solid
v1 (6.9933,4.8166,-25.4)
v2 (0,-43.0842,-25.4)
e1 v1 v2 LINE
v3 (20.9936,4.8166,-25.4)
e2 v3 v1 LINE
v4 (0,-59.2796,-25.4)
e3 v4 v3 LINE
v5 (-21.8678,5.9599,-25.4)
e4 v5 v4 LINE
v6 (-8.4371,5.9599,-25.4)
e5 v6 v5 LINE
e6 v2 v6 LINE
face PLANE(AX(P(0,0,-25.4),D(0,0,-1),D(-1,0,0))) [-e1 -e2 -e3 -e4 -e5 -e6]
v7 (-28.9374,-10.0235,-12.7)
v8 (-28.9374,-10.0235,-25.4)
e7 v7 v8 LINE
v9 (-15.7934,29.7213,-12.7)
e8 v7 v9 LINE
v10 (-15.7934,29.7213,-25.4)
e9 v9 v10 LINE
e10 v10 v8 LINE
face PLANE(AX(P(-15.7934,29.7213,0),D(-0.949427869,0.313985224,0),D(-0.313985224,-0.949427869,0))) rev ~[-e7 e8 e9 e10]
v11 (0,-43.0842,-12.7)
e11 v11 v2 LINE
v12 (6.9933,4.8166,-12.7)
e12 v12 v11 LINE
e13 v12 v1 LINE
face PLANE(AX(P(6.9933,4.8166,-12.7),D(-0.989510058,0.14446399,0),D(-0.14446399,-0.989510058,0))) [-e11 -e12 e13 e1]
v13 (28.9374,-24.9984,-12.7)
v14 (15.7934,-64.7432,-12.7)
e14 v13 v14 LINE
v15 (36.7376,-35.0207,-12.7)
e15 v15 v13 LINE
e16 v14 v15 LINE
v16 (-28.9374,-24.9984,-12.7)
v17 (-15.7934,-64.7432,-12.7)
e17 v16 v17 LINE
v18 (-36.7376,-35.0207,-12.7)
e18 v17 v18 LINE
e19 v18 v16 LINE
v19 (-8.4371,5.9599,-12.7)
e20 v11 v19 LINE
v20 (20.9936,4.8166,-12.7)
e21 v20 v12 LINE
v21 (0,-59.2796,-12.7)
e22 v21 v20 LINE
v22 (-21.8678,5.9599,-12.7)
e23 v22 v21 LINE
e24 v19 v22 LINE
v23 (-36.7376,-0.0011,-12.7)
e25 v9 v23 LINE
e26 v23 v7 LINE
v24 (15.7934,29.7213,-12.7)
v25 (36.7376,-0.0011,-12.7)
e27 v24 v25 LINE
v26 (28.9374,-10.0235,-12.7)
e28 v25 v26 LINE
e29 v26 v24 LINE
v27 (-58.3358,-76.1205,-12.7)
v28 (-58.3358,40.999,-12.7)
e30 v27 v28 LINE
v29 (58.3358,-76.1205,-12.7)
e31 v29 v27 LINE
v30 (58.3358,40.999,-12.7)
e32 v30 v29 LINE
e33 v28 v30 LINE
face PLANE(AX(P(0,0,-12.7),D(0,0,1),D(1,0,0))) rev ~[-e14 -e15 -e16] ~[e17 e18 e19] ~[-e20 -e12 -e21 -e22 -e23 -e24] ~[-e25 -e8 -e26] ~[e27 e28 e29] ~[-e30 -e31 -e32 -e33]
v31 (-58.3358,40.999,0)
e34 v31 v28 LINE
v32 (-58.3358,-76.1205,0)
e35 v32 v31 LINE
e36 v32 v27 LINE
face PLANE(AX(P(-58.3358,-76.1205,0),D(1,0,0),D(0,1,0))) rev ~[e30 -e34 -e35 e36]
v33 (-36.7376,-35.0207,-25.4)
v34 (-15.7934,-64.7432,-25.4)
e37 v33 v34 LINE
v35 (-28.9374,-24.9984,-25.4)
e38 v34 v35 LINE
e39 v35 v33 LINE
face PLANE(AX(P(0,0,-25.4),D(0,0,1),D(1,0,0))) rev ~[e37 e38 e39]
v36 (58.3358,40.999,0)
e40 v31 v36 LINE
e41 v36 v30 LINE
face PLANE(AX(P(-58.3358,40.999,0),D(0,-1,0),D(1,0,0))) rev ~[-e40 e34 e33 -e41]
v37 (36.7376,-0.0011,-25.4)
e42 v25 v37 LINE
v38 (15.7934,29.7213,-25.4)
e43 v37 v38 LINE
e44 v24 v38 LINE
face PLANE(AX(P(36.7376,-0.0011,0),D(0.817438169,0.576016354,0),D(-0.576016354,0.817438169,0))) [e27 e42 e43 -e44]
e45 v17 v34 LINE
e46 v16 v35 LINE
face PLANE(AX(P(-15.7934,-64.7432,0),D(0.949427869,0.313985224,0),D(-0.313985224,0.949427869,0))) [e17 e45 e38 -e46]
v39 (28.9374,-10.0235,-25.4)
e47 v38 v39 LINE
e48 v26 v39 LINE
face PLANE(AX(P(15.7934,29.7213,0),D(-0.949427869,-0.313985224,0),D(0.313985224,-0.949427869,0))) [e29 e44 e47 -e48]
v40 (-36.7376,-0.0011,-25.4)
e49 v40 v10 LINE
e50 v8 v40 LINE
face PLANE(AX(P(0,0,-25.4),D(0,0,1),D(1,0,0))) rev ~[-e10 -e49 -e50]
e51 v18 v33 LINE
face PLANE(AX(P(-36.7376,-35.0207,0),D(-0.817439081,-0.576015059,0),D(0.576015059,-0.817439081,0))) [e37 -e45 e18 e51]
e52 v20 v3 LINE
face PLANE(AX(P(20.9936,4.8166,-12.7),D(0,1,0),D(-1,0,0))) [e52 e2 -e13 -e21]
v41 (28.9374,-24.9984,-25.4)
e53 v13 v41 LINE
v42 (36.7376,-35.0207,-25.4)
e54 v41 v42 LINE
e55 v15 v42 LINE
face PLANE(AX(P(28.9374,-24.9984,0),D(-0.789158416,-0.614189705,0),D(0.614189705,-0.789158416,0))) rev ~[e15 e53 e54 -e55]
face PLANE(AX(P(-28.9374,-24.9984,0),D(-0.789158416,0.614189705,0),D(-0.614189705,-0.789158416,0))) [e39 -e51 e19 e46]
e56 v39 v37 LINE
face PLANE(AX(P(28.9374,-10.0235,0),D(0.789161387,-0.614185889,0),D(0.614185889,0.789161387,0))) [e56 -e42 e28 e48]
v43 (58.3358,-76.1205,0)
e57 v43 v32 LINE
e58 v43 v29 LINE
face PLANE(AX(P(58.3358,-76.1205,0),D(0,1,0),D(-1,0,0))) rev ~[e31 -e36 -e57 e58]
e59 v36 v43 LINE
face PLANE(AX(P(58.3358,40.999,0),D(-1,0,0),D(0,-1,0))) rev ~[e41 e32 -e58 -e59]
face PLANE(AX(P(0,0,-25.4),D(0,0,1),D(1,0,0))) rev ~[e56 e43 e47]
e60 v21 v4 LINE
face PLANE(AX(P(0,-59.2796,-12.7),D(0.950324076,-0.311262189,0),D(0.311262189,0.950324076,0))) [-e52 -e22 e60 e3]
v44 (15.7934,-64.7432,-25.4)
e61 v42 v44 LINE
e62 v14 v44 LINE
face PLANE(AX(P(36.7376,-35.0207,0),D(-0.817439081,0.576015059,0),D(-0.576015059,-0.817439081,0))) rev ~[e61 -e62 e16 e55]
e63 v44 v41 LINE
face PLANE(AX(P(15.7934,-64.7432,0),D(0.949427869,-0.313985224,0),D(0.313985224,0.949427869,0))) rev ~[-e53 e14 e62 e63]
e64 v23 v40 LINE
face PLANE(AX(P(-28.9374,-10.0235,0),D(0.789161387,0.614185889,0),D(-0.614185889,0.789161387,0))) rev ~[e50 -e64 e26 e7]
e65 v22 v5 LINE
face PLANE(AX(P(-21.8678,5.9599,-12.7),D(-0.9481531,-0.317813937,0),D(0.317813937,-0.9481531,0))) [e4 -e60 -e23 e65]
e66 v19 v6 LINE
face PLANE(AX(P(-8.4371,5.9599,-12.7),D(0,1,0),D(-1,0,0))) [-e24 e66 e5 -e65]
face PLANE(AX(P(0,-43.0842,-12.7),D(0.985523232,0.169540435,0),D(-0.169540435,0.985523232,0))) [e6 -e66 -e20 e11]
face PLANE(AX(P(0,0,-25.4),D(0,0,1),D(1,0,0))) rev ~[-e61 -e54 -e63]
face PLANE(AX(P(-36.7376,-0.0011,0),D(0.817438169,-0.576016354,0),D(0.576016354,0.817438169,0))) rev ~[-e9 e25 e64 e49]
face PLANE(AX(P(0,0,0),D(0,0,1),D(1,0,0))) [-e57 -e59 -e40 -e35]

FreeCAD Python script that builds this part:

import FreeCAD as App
import Part
import Sketcher
Q = App.Units.Quantity


def add_polygon(sketch, points):
    """Adds a closed chain of lines whose ends are joined by coincident constraints."""
    first, n = sketch.GeometryCount, len(points)
    for a, b in zip(points, points[1:] + points[:1]):
        sketch.addGeometry(Part.LineSegment(App.Vector(*a, 0), App.Vector(*b, 0)), False)
    for i in range(n):
        sketch.addConstraint(Sketcher.Constraint("Coincident", first + i, 2, first + (i + 1) % n, 1))

doc = App.newDocument("Part")
body = doc.addObject("PartDesign::Body", "Body")
body.AllowCompound = True

# Sketch on XY plane
sketch1 = doc.addObject("Sketcher::SketchObject", "Sketch")
body.addObject(sketch1)
sketch1.AttachmentSupport = (doc.XY_Plane, [""])
sketch1.MapMode = "FlatFace"
add_polygon(sketch1, [(-37, 0), (-29, -10), (-16, 30)])  # lines 0-2
add_polygon(sketch1, [(16, 30), (29, -10), (37, 0)])  # lines 3-5
add_polygon(sketch1, [(-16, -65), (-29, -25), (-37, -35)])  # lines 6-8
add_polygon(sketch1, [(29, -25), (16, -65), (37, -35)])  # lines 9-11
sketch1.addConstraint([
    Sketcher.Constraint("Symmetric", 0, 2, 3, 2, -2),
    Sketcher.Constraint("Symmetric", 2, 2, 4, 2, -2),
    Sketcher.Constraint("Symmetric", 1, 2, 5, 2, -2),
    Sketcher.Constraint("Symmetric", 8, 2, 9, 2, -2),
    Sketcher.Constraint("Symmetric", 7, 2, 10, 2, -2),
    Sketcher.Constraint("Symmetric", 6, 2, 11, 2, -2),
    Sketcher.Constraint("Parallel", 3, 6),
    Sketcher.Constraint("Parallel", 4, 7),
    Sketcher.Constraint("Parallel", 5, 8),
    Sketcher.Constraint("Vertical", 0, 2, 6, 2),
    Sketcher.Constraint("Vertical", 2, 2, 7, 2),
    Sketcher.Constraint("Distance", 0, Q("0.5 in")),
    Sketcher.Constraint("Angle", 1, Q("71.7004 deg")),
    Sketcher.Constraint("Angle", 2, Q("-125.1708 deg")),
    Sketcher.Constraint("Distance", 1, Q("1.6481 in")),
    Sketcher.Constraint("DistanceY", 6, 2, -1, 1, Q("0.9842 in")),
    Sketcher.Constraint("DistanceY", 7, 2, 1, 2, Q("2.5489 in")),
    Sketcher.Constraint("DistanceX", 0, 2, -1, 1, 28.9374),
])
pad1 = doc.addObject("PartDesign::Pad", "Pad")
body.addObject(pad1)
pad1.Profile = sketch1
pad1.Length = Q("1 in")
pad1.Reversed = True

# Sketch on XY plane
sketch2 = doc.addObject("Sketcher::SketchObject", "Sketch001")
body.addObject(sketch2)
sketch2.AttachmentSupport = (doc.XY_Plane, [""])
sketch2.MapMode = "FlatFace"
add_polygon(sketch2, [(58, 41), (-58, 41), (-58, -76), (58, -76)])  # lines 0-3
sketch2.addConstraint([
    Sketcher.Constraint("Horizontal", 0),
    Sketcher.Constraint("Vertical", 1),
    Sketcher.Constraint("Horizontal", 2),
    Sketcher.Constraint("Vertical", 3),
    Sketcher.Constraint("DistanceY", 1, 2, 1, 1, Q("4.611 in")),
    Sketcher.Constraint("DistanceX", 0, 2, 0, 1, 116.6716),
    Sketcher.Constraint("DistanceX", 0, 2, -1, 1, 58.3358),
    Sketcher.Constraint("DistanceY", -1, 1, 0, 2, 40.999),
])
pad2 = doc.addObject("PartDesign::Pad", "Pad001")
body.addObject(pad2)
pad2.Profile = sketch2
pad2.Length = Q("0.5 in")
pad2.Reversed = True

# Sketch on XY plane
sketch3 = doc.addObject("Sketcher::SketchObject", "Sketch002")
body.addObject(sketch3)
sketch3.AttachmentSupport = (doc.XY_Plane, [""])
sketch3.MapMode = "FlatFace"
sketch3.AttachmentOffset = App.Placement(App.Vector(0, 0, -0.5 * 25.4), App.Rotation())
add_polygon(sketch3, [(7, 5), (21, 5), (0, -59), (-22, 6), (-8, 6), (0, -43)])  # lines 0-5
sketch3.addConstraint([
    Sketcher.Constraint("Horizontal", 0),
    Sketcher.Constraint("Horizontal", 3),
    Sketcher.Constraint("PointOnObject", 1, 2, -2),
    Sketcher.Constraint("PointOnObject", 4, 2, -2),
    Sketcher.Constraint("Angle", 2, Q("108.5308 deg")),
    Sketcher.Constraint("Angle", 4, Q("-80.239 deg")),
    Sketcher.Constraint("DistanceX", 0, 1, 0, 2, Q("0.5512 in")),
    Sketcher.Constraint("DistanceY", 0, 2, 2, 2, Q("0.045 in")),
    Sketcher.Constraint("DistanceX", 3, 1, 3, 2, 13.4307),
    Sketcher.Constraint("DistanceX", 3, 2, 0, 2, Q("1.1587 in")),
    Sketcher.Constraint("Distance", 1, 67.4467),
    Sketcher.Constraint("DistanceY", -1, 1, 0, 2, 4.8166),
])
pad3 = doc.addObject("PartDesign::Pad", "Pad002")
body.addObject(pad3)
pad3.Profile = sketch3
pad3.Length = Q("0.5 in")
pad3.Reversed = True

doc.recompute()
